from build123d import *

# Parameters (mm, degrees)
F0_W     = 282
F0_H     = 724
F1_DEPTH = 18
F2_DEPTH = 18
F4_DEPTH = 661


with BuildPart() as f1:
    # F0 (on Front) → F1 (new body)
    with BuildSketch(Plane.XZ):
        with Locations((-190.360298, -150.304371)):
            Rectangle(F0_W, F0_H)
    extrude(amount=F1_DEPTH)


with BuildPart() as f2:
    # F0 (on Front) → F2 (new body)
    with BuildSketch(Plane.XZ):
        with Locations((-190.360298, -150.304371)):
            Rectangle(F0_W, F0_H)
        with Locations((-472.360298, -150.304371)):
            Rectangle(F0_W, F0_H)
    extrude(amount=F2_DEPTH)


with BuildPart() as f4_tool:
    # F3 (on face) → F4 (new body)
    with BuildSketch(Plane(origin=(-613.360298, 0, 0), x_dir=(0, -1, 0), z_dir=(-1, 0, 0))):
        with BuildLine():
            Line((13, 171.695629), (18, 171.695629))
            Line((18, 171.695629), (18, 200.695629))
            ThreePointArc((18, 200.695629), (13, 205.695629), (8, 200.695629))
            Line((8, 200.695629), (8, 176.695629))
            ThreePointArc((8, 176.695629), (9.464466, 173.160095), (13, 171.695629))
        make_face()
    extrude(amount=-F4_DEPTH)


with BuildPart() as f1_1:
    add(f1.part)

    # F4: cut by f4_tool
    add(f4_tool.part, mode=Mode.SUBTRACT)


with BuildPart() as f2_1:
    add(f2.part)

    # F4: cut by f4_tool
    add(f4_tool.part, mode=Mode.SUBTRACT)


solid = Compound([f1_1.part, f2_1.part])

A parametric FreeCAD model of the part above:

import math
import FreeCAD as App
import Part
import Sketcher
from FreeCAD import Vector
Q = App.Units.Quantity

doc = App.newDocument("Part")
body = doc.addObject("PartDesign::Body", "Body")

sketch1 = body.newObject("Sketcher::SketchObject", "Sketch")
sketch1.AttachmentSupport = (doc.getObject("XZ_Plane"), [""])
sketch1.MapMode = "FlatFace"
sketch1.addGeometry([
    Part.LineSegment(Vector(-331.360298, 211.695629, 0), Vector(-331.360298, -512.304371, 0)),
    Part.LineSegment(Vector(-331.360298, -512.304371, 0), Vector(-49.360298, -512.304371, 0)),
    Part.LineSegment(Vector(-49.360298, -512.304371, 0), Vector(-49.360298, 211.695629, 0)),
    Part.LineSegment(Vector(-49.360298, 211.695629, 0), Vector(-331.360298, 211.695629, 0)),
], False)
sketch1.addConstraint([
    Sketcher.Constraint("Coincident", 0, 2, 1, 1),
    Sketcher.Constraint("Coincident", 1, 2, 2, 1),
    Sketcher.Constraint("Coincident", 2, 2, 3, 1),
    Sketcher.Constraint("Coincident", 3, 2, 0, 1),
    Sketcher.Constraint("Vertical", 0),
    Sketcher.Constraint("Horizontal", 1),
    Sketcher.Constraint("Vertical", 2),
    Sketcher.Constraint("Horizontal", 3),
    Sketcher.Constraint("DistanceX", 1, 1, 1, 2, Q("282 mm")),
    Sketcher.Constraint("DistanceY", 0, 2, 0, 1, Q("724 mm")),
    Sketcher.Constraint("DistanceX", 0, 2, -1, 1, Q("331.360298 mm")),
    Sketcher.Constraint("DistanceY", 0, 2, -1, 1, Q("512.304371 mm")),
])
pad1 = body.newObject("PartDesign::Pad", "Pad")
pad1.Profile = sketch1
pad1.Length = 18
body2 = doc.addObject("PartDesign::Body", "Body001")

sketch2 = body2.newObject("Sketcher::SketchObject", "Sketch001")
sketch2.AttachmentSupport = (doc.getObject("XZ_Plane001"), [""])
sketch2.MapMode = "FlatFace"
sketch2.addGeometry([
    Part.LineSegment(Vector(-49.360298, -512.304371, 0), Vector(-49.360298, 211.695629, 0)),
    Part.LineSegment(Vector(-49.360298, 211.695629, 0), Vector(-613.360298, 211.695629, 0)),
    Part.LineSegment(Vector(-613.360298, 211.695629, 0), Vector(-613.360298, -512.304371, 0)),
    Part.LineSegment(Vector(-613.360298, -512.304371, 0), Vector(-49.360298, -512.304371, 0)),
], False)
sketch2.addConstraint([
    Sketcher.Constraint("Coincident", 0, 2, 1, 1),
    Sketcher.Constraint("Coincident", 1, 2, 2, 1),
    Sketcher.Constraint("Coincident", 2, 2, 3, 1),
    Sketcher.Constraint("Coincident", 3, 2, 0, 1),
    Sketcher.Constraint("Vertical", 0),
    Sketcher.Constraint("Horizontal", 1),
    Sketcher.Constraint("Vertical", 2),
    Sketcher.Constraint("Horizontal", 3),
    Sketcher.Constraint("DistanceX", 1, 2, 1, 1, Q("564 mm")),
    Sketcher.Constraint("DistanceY", 0, 1, 0, 2, Q("724 mm")),
    Sketcher.Constraint("DistanceY", -1, 1, 0, 2, Q("211.695629 mm")),
    Sketcher.Constraint("DistanceX", 0, 2, -1, 1, Q("49.360298 mm")),
])
pad2 = body2.newObject("PartDesign::Pad", "Pad001")
pad2.Profile = sketch2
pad2.Length = 18
body3 = doc.addObject("PartDesign::Body", "Body002")

sketch3 = body3.newObject("Sketcher::SketchObject", "Sketch002")
sketch3.AttachmentSupport = (doc.getObject("YZ_Plane002"), [""])
sketch3.MapMode = "FlatFace"
sketch3.AttachmentOffset = App.Placement(Vector(0, 0, -613.360298), App.Rotation())
sketch3.addGeometry([
    Part.LineSegment(Vector(-13, 171.695629, 0), Vector(-18, 171.695629, 0)),
    Part.LineSegment(Vector(-18, 171.695629, 0), Vector(-18, 200.695629, 0)),
    Part.ArcOfCircle(Part.Circle(Vector(-13, 200.695629, 0), Vector(0, 0, 1), 5), math.radians(0), math.radians(180)),
    Part.LineSegment(Vector(-8, 200.695629, 0), Vector(-8, 176.695629, 0)),
    Part.ArcOfCircle(Part.Circle(Vector(-13, 176.695629, 0), Vector(0, 0, 1), 5), math.radians(-90.000004), math.radians(0.000004)),
], False)
sketch3.addConstraint([
    Sketcher.Constraint("Coincident", 0, 2, 1, 1),
    Sketcher.Constraint("Tangent", 1, 2, 2, 2),
    Sketcher.Constraint("Tangent", 2, 1, 3, 1),
    Sketcher.Constraint("Tangent", 3, 2, 4, 2),
    Sketcher.Constraint("Tangent", 4, 1, 0, 1),
    Sketcher.Constraint("Horizontal", 0),
    Sketcher.Constraint("Vertical", 1),
    Sketcher.Constraint("Vertical", 3),
    Sketcher.Constraint("Equal", 2, 4),
    Sketcher.Constraint("Radius", 2, Q("5 mm")),
    Sketcher.Constraint("DistanceY", 1, 1, 1, 2, Q("29 mm")),
    Sketcher.Constraint("DistanceX", 2, 3, -1, 1, Q("13 mm")),
    Sketcher.Constraint("DistanceY", -1, 1, 2, 3, Q("200.695629 mm")),
])
pad3 = body3.newObject("PartDesign::Pad", "Pad002")
pad3.Profile = sketch3
pad3.Length = 661
doc.recompute()

body4 = doc.addObject("PartDesign::Body", "Body003")
body4.BaseFeature = body3
boolean = body.newObject("PartDesign::Boolean", "Boolean")
boolean.Type = "Cut"
boolean.addObjects([body4])
doc.recompute()

boolean2 = body2.newObject("PartDesign::Boolean", "Boolean001")
boolean2.Type = "Cut"
boolean2.addObjects([body3])

doc.recompute()
